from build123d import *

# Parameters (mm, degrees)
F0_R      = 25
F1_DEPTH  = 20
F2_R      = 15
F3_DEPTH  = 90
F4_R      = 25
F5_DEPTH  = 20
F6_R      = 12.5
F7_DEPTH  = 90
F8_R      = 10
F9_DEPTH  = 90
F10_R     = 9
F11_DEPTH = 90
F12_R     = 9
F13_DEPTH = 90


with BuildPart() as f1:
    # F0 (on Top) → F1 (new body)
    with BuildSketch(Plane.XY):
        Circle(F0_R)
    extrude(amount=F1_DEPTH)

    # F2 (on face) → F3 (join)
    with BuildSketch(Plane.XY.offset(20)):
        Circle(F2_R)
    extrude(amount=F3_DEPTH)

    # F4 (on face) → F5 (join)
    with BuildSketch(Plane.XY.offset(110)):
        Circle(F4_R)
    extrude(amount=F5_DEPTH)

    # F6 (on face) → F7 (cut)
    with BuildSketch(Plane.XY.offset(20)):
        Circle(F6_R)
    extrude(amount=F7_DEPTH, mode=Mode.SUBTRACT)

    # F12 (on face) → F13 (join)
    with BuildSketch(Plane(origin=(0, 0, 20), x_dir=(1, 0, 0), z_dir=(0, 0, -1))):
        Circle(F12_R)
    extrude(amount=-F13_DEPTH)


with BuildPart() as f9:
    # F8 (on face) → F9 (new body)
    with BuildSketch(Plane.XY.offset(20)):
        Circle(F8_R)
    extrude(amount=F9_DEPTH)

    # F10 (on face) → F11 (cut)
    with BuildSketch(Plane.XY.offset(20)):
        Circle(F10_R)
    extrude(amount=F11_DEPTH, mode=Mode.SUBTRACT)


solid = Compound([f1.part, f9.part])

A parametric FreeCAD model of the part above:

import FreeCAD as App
import Part
import Sketcher
from FreeCAD import Vector
Q = App.Units.Quantity

doc = App.newDocument("Part")
body = doc.addObject("PartDesign::Body", "Body")

# Sketch on XY plane
sketch1 = body.newObject("Sketcher::SketchObject", "Sketch")
sketch1.AttachmentSupport = (doc.getObject("XY_Plane"), [""])
sketch1.MapMode = "FlatFace"
sketch1.addGeometry(Part.Circle(Vector(0, 0, 0), Vector(0, 0, 1), 25), False)
sketch1.addConstraint([
    Sketcher.Constraint("Coincident", 0, 3, -1, 1),
    Sketcher.Constraint("Diameter", 0, Q("50 mm")),
])
pad1 = body.newObject("PartDesign::Pad", "Pad")
pad1.Profile = sketch1
pad1.Length = 20

# Sketch on XY plane
sketch2 = body.newObject("Sketcher::SketchObject", "Sketch001")
sketch2.AttachmentSupport = (doc.getObject("XY_Plane"), [""])
sketch2.MapMode = "FlatFace"
sketch2.AttachmentOffset = App.Placement(Vector(0, 0, 20), App.Rotation())
sketch2.addGeometry(Part.Circle(Vector(0, 0, 0), Vector(0, 0, 1), 15), False)
sketch2.addConstraint([
    Sketcher.Constraint("Coincident", 0, 3, -1, 1),
    Sketcher.Constraint("Diameter", 0, Q("30 mm")),
])
pad2 = body.newObject("PartDesign::Pad", "Pad001")
pad2.Profile = sketch2
pad2.Length = 90

# Sketch on XY plane
sketch3 = body.newObject("Sketcher::SketchObject", "Sketch002")
sketch3.AttachmentSupport = (doc.getObject("XY_Plane"), [""])
sketch3.MapMode = "FlatFace"
sketch3.AttachmentOffset = App.Placement(Vector(0, 0, 110), App.Rotation())
sketch3.addGeometry(Part.Circle(Vector(0, 0, 0), Vector(0, 0, 1), 25), False)
sketch3.addConstraint([
    Sketcher.Constraint("Coincident", 0, 3, -1, 1),
    Sketcher.Constraint("Diameter", 0, Q("50 mm")),
])
pad3 = body.newObject("PartDesign::Pad", "Pad002")
pad3.Profile = sketch3
pad3.Length = 20

# Sketch on XY plane
sketch4 = body.newObject("Sketcher::SketchObject", "Sketch003")
sketch4.AttachmentSupport = (doc.getObject("XY_Plane"), [""])
sketch4.MapMode = "FlatFace"
sketch4.AttachmentOffset = App.Placement(Vector(0, 0, 20), App.Rotation())
sketch4.addGeometry(Part.Circle(Vector(0, 0, 0), Vector(0, 0, 1), 12), False)
sketch4.addConstraint([
    Sketcher.Constraint("Coincident", 0, 3, -1, 1),
    Sketcher.Constraint("Diameter", 0, Q("25 mm")),
])
pocket1 = body.newObject("PartDesign::Pocket", "Pocket")
pocket1.Profile = sketch4
pocket1.Length = 90
pocket1.Reversed = True

# Sketch on XY plane
sketch5 = body.newObject("Sketcher::SketchObject", "Sketch004")
sketch5.AttachmentSupport = (doc.getObject("XY_Plane"), [""])
sketch5.MapMode = "FlatFace"
sketch5.AttachmentOffset = App.Placement(Vector(0, 0, 20), App.Rotation())
sketch5.addGeometry(Part.Circle(Vector(0, 0, 0), Vector(0, 0, 1), 9), False)
sketch5.addConstraint([
    Sketcher.Constraint("Coincident", 0, 3, -1, 1),
    Sketcher.Constraint("Diameter", 0, Q("18 mm")),
])
pad4 = body.newObject("PartDesign::Pad", "Pad003")
pad4.Profile = sketch5
pad4.Length = 90
body2 = doc.addObject("PartDesign::Body", "Body001")

# Sketch on XY plane
sketch6 = body2.newObject("Sketcher::SketchObject", "Sketch005")
sketch6.AttachmentSupport = (doc.getObject("XY_Plane001"), [""])
sketch6.MapMode = "FlatFace"
sketch6.AttachmentOffset = App.Placement(Vector(0, 0, 20), App.Rotation())
sketch6.addGeometry(Part.Circle(Vector(0, 0, 0), Vector(0, 0, 1), 10), False)
sketch6.addConstraint([
    Sketcher.Constraint("Coincident", 0, 3, -1, 1),
    Sketcher.Constraint("Diameter", 0, Q("20 mm")),
])
pad5 = body2.newObject("PartDesign::Pad", "Pad004")
pad5.Profile = sketch6
pad5.Length = 90

# Sketch on XY plane
sketch7 = body2.newObject("Sketcher::SketchObject", "Sketch006")
sketch7.AttachmentSupport = (doc.getObject("XY_Plane001"), [""])
sketch7.MapMode = "FlatFace"
sketch7.AttachmentOffset = App.Placement(Vector(0, 0, 20), App.Rotation())
sketch7.addGeometry(Part.Circle(Vector(0, 0, 0), Vector(0, 0, 1), 9), False)
sketch7.addConstraint([
    Sketcher.Constraint("Coincident", 0, 3, -1, 1),
    Sketcher.Constraint("Diameter", 0, Q("18 mm")),
])
pocket2 = body2.newObject("PartDesign::Pocket", "Pocket001")
pocket2.Profile = sketch7
pocket2.Length = 90
pocket2.Reversed = True

doc.recompute()
